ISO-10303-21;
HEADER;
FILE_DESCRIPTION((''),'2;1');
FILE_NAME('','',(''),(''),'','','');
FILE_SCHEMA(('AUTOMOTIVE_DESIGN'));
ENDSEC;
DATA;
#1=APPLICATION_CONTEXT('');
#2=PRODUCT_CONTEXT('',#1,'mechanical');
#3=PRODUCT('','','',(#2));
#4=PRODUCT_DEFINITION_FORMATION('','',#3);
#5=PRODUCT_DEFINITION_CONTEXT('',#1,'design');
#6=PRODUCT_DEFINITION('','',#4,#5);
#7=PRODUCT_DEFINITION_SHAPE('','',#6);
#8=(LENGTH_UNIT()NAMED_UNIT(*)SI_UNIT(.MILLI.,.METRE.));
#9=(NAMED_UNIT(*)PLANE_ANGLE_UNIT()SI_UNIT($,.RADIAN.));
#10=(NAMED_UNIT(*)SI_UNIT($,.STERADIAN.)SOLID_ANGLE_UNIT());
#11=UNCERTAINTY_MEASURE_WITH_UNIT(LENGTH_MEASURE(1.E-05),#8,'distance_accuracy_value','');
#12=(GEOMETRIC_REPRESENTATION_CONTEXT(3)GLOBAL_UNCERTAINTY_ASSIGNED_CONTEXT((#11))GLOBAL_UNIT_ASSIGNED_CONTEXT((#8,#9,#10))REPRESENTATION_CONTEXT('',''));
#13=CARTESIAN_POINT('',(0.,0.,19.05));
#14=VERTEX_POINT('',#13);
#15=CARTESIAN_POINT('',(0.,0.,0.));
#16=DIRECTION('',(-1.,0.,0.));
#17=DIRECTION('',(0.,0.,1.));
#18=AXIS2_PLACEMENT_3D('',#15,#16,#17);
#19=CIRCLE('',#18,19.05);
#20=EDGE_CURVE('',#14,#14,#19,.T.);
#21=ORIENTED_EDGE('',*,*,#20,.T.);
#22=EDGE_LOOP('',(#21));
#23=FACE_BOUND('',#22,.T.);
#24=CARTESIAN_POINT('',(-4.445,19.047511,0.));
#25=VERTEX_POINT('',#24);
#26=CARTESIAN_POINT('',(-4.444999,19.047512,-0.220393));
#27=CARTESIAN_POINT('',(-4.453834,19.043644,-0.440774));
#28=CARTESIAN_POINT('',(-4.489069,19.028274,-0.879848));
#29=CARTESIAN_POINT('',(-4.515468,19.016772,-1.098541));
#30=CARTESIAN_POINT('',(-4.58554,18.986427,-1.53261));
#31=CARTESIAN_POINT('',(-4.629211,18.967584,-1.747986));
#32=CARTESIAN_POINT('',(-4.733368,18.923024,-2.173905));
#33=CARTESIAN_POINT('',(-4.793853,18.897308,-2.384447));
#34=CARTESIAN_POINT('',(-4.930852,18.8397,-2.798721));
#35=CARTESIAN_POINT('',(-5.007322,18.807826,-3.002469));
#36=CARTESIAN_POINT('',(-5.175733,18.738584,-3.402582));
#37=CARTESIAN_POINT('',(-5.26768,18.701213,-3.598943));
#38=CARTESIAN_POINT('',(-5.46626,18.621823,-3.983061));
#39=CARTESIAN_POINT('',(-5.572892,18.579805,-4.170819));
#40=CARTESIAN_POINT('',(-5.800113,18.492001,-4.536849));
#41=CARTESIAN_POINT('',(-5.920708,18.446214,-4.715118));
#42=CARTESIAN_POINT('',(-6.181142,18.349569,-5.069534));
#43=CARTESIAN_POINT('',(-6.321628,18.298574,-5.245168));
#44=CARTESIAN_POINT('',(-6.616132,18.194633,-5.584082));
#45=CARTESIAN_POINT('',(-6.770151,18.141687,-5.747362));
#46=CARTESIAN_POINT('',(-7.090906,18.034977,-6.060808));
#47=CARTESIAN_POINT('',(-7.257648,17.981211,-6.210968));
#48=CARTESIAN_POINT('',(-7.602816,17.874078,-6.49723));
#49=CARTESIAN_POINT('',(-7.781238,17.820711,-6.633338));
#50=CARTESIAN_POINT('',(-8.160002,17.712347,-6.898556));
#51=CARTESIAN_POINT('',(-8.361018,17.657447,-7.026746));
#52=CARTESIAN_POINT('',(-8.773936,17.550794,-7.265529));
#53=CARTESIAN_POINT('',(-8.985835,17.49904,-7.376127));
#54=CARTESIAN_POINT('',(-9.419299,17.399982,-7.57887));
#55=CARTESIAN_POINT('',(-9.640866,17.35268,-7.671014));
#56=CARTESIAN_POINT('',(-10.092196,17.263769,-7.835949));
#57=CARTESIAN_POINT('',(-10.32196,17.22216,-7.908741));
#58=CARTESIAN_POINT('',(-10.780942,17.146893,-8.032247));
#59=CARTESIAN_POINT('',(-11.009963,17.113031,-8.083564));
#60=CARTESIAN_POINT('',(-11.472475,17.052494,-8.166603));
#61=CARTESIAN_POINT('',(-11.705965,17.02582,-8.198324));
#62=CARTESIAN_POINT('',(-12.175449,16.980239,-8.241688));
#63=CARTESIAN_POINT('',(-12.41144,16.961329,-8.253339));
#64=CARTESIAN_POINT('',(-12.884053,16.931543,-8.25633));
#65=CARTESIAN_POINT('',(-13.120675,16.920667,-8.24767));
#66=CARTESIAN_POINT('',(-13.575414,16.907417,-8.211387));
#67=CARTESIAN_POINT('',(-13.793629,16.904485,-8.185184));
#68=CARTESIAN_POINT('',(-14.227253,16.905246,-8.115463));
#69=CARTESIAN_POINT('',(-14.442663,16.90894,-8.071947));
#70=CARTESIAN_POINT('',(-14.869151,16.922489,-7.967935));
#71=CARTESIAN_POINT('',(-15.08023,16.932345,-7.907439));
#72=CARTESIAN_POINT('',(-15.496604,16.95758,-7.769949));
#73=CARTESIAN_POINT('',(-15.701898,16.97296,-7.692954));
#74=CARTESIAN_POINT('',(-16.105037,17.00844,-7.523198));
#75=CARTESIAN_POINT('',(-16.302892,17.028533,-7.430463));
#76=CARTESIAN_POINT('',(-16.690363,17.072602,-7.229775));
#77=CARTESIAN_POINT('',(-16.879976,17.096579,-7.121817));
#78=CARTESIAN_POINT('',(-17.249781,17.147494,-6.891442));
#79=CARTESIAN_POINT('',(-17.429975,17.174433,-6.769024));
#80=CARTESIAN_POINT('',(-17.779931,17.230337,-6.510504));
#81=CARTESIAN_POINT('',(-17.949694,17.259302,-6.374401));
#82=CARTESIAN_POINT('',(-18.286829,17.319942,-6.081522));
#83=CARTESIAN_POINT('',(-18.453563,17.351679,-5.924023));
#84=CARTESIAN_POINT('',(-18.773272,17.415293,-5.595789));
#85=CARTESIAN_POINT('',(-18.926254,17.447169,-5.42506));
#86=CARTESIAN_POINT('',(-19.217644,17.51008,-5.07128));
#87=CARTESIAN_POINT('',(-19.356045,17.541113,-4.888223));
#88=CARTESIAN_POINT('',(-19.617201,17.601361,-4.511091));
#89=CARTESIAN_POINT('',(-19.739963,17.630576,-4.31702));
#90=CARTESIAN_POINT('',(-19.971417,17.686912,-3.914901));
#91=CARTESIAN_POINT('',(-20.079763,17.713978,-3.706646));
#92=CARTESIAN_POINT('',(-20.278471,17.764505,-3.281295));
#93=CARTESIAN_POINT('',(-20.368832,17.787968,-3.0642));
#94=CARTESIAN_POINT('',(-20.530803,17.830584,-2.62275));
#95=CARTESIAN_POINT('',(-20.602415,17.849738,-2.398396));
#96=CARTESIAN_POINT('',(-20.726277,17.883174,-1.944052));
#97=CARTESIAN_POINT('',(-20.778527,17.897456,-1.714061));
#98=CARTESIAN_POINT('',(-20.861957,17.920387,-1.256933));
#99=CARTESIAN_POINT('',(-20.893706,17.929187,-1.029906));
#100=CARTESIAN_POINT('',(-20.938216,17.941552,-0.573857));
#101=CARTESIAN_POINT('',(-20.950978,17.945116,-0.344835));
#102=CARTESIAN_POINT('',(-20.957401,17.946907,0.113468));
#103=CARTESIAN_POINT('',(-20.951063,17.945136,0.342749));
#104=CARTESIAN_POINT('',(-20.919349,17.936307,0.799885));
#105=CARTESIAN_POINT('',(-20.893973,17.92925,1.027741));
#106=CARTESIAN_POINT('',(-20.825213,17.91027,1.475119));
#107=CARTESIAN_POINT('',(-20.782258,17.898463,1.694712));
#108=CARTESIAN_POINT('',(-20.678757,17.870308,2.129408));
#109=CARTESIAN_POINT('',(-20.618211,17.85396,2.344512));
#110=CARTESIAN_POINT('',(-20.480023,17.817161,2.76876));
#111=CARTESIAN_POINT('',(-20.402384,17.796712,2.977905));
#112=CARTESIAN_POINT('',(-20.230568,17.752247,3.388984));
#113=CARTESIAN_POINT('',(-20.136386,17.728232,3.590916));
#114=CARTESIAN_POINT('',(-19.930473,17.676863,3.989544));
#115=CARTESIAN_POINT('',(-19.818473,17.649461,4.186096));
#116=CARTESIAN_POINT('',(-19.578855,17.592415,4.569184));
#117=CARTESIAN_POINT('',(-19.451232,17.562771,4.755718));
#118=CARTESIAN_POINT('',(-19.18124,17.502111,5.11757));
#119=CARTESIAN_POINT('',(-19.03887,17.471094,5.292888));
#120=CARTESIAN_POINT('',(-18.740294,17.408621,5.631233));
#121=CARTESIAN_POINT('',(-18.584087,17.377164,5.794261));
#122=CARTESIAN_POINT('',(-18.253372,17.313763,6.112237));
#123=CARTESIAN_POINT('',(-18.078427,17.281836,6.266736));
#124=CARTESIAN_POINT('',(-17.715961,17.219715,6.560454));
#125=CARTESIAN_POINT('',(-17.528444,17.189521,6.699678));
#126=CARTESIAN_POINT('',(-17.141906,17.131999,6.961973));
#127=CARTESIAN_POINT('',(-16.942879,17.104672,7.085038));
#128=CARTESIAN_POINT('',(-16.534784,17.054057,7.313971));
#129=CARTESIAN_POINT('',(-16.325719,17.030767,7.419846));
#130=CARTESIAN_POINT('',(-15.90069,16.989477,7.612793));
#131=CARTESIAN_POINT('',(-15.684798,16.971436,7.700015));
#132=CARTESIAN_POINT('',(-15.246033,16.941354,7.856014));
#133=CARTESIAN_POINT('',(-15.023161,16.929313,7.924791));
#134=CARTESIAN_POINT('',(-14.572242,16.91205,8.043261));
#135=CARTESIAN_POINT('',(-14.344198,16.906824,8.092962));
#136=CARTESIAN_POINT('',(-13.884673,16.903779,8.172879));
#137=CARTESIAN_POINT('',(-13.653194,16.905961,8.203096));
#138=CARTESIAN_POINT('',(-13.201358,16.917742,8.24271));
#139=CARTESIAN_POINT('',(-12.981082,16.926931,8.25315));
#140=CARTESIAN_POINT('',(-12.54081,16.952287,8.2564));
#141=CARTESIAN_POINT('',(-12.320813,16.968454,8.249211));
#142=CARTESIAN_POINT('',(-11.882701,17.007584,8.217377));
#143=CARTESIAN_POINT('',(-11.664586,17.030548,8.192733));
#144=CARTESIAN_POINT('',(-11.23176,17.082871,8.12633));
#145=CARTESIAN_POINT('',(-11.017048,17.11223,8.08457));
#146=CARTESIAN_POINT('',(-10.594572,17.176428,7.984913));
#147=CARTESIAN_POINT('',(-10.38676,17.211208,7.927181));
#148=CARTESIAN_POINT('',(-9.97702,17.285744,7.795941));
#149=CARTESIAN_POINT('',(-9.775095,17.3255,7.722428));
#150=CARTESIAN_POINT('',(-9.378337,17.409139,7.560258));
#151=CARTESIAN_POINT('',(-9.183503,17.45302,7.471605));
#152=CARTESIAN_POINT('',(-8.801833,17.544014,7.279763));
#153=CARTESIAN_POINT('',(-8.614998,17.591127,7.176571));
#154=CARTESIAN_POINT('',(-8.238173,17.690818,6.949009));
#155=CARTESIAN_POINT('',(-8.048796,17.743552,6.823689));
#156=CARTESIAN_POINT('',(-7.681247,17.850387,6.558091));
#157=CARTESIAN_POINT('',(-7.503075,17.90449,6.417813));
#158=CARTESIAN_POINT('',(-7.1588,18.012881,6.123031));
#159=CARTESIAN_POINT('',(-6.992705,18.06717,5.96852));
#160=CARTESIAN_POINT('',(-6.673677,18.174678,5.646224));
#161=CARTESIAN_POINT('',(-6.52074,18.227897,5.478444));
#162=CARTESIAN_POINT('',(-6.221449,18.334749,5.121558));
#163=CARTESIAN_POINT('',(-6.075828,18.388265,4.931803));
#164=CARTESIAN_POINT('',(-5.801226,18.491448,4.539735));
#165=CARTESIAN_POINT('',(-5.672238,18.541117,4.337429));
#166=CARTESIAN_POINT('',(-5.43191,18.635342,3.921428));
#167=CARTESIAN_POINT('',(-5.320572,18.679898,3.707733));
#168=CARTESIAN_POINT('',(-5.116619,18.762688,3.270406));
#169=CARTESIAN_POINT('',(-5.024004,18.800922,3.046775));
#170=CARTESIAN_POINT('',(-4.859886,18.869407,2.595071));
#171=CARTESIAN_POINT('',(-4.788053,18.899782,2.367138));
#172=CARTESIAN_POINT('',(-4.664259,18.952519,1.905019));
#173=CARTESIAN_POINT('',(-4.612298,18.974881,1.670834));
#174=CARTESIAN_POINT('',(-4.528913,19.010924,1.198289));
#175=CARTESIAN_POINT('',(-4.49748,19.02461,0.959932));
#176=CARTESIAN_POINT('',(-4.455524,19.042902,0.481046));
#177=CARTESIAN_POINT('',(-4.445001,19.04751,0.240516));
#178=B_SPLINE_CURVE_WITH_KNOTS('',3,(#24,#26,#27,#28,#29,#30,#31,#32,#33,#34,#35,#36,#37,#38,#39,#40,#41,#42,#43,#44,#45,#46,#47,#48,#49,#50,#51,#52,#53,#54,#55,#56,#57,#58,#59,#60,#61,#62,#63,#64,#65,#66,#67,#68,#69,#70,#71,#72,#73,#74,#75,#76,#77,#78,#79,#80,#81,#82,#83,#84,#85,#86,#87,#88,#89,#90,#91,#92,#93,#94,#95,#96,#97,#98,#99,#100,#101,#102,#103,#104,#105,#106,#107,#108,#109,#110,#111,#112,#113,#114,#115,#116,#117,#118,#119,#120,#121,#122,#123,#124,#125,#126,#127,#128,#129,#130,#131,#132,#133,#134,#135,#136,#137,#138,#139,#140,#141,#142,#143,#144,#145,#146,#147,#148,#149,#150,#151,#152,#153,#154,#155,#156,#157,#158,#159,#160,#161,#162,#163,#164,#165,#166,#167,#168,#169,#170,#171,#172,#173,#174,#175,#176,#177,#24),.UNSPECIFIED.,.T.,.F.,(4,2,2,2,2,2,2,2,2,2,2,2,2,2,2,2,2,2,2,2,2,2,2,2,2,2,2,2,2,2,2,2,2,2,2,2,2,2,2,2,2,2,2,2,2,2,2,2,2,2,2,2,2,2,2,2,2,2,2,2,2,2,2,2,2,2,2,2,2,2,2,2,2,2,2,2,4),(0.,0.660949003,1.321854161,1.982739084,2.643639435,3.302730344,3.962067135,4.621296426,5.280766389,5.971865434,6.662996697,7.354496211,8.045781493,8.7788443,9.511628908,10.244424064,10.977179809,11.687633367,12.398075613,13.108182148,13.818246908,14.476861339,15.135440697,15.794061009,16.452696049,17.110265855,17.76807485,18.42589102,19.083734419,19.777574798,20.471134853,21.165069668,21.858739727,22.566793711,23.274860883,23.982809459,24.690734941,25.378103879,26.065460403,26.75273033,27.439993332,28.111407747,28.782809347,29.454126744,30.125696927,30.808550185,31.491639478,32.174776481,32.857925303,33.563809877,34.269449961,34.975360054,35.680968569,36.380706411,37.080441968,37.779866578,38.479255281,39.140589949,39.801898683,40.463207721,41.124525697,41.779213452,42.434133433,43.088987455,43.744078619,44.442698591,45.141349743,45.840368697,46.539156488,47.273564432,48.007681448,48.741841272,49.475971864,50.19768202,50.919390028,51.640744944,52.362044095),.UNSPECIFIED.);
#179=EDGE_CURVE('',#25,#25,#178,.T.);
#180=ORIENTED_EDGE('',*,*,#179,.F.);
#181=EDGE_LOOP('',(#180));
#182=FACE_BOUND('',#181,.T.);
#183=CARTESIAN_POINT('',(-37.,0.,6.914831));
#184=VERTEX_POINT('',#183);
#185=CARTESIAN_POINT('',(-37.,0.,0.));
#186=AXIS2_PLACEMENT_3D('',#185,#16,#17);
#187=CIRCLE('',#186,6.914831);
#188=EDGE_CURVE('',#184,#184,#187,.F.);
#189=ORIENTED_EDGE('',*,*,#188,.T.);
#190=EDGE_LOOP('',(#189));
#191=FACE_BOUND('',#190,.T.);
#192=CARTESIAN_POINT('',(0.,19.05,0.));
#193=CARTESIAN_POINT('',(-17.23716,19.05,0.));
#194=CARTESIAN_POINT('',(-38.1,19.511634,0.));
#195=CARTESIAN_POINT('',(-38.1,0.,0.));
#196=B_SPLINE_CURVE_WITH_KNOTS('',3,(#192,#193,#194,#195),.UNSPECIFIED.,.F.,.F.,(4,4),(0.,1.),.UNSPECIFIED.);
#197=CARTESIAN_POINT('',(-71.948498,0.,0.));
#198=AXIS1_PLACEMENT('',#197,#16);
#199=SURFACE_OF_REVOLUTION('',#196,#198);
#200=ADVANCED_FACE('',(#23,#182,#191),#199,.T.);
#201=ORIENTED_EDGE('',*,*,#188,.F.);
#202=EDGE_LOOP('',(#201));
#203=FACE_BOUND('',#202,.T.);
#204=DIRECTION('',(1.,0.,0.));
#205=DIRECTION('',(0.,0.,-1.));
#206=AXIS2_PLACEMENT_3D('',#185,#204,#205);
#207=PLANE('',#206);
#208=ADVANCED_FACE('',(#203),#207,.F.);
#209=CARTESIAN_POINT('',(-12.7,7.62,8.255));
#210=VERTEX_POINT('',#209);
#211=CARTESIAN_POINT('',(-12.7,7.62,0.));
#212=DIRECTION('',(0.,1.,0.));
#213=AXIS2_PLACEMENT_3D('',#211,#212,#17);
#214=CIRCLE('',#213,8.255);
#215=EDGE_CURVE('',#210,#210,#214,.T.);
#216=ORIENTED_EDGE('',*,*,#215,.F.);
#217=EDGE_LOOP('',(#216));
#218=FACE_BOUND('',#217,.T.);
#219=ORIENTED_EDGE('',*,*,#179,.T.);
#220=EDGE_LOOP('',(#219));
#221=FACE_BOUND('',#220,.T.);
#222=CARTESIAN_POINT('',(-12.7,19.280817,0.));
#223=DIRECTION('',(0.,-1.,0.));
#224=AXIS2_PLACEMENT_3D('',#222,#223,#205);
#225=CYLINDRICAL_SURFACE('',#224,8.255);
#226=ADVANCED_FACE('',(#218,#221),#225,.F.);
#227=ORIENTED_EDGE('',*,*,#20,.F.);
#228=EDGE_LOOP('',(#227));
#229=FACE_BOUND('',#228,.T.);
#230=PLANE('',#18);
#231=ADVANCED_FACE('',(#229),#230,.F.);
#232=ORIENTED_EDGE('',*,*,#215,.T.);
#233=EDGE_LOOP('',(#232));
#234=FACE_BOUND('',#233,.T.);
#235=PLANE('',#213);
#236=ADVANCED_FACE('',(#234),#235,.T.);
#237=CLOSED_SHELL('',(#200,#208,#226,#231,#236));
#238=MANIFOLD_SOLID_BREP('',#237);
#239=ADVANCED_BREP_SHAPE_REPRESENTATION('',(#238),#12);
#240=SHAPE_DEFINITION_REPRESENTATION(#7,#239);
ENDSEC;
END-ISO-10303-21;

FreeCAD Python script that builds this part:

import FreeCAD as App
import Part
import Sketcher

V = App.Vector
Q = App.Units.Quantity

doc = App.newDocument("Part")
body = doc.addObject("PartDesign::Body", "Body")

# Sketch on XY plane
sketch1 = body.newObject("Sketcher::SketchObject", "Sketch")
sketch1.AttachmentSupport = (doc.getObject("XY_Plane"), [""])
sketch1.MapMode = "FlatFace"
sketch1.addGeometry(Part.LineSegment(V(-38.1, 0, 0), V(0, 0, 0)), False)
sketch1.addGeometry(Part.LineSegment(V(0, 0, 0), V(0, 19.05, 0)), False)
sketch1.addGeometry(Part.BSplineCurve([V(-38.1, 0, 0), V(-38.1, 19.511634, 0), V(-17.23716, 19.05, 0), V(0, 19.05, 0)], [4, 4], [0, 1], False, 3, [1, 1, 1, 1], False), False)
sketch1.addConstraint(Sketcher.Constraint("Block", 2))
sketch1.addConstraint(Sketcher.Constraint("Coincident", 0, 2, 1, 1))
sketch1.addConstraint(Sketcher.Constraint("Coincident", 1, 2, 2, 2))
sketch1.addConstraint(Sketcher.Constraint("Coincident", 2, 1, 0, 1))
sketch1.addConstraint(Sketcher.Constraint("Horizontal", 0))
sketch1.addConstraint(Sketcher.Constraint("Vertical", 1))
revolution = body.newObject("PartDesign::Revolution", "Revolution")
revolution.Profile = sketch1
revolution.ReferenceAxis = (sketch1, ["H_Axis"])
revolution.Angle = 360

# Sketch on XZ plane
sketch2 = body.newObject("Sketcher::SketchObject", "Sketch001")
sketch2.AttachmentSupport = (doc.getObject("XZ_Plane"), [""])
sketch2.MapMode = "FlatFace"
sketch2.AttachmentOffset = App.Placement(V(0, 0, -0.3 * 25.4), App.Rotation())
sketch2.addGeometry(Part.Circle(V(-13, 0, 0), V(0, 0, 1), 8), False)
sketch2.addConstraint(Sketcher.Constraint("PointOnObject", 0, 3, -1))
sketch2.addConstraint(Sketcher.Constraint("Diameter", 0, Q("0.65 in")))
sketch2.addConstraint(Sketcher.Constraint("DistanceX", 0, 3, -1, 1, Q("0.5 in")))
pocket1 = body.newObject("PartDesign::Pocket", "Pocket")
pocket1.Profile = sketch2
pocket1.Type = "ThroughAll"

# Sketch on YZ plane
sketch3 = body.newObject("Sketcher::SketchObject", "Sketch002")
sketch3.AttachmentSupport = (doc.getObject("YZ_Plane"), [""])
sketch3.MapMode = "FlatFace"
sketch3.AttachmentOffset = App.Placement(V(0, 0, -37), App.Rotation())
sketch3.addGeometry(Part.Circle(V(0, 0, 0), V(0, 0, 1), 12), False)
sketch3.addConstraint(Sketcher.Constraint("Coincident", 0, 3, -1, 1))
sketch3.addConstraint(Sketcher.Constraint("Diameter", 0, Q("24.794124 mm")))
pocket2 = body.newObject("PartDesign::Pocket", "Pocket001")
pocket2.Profile = sketch3
pocket2.Length = 10

doc.recompute()
